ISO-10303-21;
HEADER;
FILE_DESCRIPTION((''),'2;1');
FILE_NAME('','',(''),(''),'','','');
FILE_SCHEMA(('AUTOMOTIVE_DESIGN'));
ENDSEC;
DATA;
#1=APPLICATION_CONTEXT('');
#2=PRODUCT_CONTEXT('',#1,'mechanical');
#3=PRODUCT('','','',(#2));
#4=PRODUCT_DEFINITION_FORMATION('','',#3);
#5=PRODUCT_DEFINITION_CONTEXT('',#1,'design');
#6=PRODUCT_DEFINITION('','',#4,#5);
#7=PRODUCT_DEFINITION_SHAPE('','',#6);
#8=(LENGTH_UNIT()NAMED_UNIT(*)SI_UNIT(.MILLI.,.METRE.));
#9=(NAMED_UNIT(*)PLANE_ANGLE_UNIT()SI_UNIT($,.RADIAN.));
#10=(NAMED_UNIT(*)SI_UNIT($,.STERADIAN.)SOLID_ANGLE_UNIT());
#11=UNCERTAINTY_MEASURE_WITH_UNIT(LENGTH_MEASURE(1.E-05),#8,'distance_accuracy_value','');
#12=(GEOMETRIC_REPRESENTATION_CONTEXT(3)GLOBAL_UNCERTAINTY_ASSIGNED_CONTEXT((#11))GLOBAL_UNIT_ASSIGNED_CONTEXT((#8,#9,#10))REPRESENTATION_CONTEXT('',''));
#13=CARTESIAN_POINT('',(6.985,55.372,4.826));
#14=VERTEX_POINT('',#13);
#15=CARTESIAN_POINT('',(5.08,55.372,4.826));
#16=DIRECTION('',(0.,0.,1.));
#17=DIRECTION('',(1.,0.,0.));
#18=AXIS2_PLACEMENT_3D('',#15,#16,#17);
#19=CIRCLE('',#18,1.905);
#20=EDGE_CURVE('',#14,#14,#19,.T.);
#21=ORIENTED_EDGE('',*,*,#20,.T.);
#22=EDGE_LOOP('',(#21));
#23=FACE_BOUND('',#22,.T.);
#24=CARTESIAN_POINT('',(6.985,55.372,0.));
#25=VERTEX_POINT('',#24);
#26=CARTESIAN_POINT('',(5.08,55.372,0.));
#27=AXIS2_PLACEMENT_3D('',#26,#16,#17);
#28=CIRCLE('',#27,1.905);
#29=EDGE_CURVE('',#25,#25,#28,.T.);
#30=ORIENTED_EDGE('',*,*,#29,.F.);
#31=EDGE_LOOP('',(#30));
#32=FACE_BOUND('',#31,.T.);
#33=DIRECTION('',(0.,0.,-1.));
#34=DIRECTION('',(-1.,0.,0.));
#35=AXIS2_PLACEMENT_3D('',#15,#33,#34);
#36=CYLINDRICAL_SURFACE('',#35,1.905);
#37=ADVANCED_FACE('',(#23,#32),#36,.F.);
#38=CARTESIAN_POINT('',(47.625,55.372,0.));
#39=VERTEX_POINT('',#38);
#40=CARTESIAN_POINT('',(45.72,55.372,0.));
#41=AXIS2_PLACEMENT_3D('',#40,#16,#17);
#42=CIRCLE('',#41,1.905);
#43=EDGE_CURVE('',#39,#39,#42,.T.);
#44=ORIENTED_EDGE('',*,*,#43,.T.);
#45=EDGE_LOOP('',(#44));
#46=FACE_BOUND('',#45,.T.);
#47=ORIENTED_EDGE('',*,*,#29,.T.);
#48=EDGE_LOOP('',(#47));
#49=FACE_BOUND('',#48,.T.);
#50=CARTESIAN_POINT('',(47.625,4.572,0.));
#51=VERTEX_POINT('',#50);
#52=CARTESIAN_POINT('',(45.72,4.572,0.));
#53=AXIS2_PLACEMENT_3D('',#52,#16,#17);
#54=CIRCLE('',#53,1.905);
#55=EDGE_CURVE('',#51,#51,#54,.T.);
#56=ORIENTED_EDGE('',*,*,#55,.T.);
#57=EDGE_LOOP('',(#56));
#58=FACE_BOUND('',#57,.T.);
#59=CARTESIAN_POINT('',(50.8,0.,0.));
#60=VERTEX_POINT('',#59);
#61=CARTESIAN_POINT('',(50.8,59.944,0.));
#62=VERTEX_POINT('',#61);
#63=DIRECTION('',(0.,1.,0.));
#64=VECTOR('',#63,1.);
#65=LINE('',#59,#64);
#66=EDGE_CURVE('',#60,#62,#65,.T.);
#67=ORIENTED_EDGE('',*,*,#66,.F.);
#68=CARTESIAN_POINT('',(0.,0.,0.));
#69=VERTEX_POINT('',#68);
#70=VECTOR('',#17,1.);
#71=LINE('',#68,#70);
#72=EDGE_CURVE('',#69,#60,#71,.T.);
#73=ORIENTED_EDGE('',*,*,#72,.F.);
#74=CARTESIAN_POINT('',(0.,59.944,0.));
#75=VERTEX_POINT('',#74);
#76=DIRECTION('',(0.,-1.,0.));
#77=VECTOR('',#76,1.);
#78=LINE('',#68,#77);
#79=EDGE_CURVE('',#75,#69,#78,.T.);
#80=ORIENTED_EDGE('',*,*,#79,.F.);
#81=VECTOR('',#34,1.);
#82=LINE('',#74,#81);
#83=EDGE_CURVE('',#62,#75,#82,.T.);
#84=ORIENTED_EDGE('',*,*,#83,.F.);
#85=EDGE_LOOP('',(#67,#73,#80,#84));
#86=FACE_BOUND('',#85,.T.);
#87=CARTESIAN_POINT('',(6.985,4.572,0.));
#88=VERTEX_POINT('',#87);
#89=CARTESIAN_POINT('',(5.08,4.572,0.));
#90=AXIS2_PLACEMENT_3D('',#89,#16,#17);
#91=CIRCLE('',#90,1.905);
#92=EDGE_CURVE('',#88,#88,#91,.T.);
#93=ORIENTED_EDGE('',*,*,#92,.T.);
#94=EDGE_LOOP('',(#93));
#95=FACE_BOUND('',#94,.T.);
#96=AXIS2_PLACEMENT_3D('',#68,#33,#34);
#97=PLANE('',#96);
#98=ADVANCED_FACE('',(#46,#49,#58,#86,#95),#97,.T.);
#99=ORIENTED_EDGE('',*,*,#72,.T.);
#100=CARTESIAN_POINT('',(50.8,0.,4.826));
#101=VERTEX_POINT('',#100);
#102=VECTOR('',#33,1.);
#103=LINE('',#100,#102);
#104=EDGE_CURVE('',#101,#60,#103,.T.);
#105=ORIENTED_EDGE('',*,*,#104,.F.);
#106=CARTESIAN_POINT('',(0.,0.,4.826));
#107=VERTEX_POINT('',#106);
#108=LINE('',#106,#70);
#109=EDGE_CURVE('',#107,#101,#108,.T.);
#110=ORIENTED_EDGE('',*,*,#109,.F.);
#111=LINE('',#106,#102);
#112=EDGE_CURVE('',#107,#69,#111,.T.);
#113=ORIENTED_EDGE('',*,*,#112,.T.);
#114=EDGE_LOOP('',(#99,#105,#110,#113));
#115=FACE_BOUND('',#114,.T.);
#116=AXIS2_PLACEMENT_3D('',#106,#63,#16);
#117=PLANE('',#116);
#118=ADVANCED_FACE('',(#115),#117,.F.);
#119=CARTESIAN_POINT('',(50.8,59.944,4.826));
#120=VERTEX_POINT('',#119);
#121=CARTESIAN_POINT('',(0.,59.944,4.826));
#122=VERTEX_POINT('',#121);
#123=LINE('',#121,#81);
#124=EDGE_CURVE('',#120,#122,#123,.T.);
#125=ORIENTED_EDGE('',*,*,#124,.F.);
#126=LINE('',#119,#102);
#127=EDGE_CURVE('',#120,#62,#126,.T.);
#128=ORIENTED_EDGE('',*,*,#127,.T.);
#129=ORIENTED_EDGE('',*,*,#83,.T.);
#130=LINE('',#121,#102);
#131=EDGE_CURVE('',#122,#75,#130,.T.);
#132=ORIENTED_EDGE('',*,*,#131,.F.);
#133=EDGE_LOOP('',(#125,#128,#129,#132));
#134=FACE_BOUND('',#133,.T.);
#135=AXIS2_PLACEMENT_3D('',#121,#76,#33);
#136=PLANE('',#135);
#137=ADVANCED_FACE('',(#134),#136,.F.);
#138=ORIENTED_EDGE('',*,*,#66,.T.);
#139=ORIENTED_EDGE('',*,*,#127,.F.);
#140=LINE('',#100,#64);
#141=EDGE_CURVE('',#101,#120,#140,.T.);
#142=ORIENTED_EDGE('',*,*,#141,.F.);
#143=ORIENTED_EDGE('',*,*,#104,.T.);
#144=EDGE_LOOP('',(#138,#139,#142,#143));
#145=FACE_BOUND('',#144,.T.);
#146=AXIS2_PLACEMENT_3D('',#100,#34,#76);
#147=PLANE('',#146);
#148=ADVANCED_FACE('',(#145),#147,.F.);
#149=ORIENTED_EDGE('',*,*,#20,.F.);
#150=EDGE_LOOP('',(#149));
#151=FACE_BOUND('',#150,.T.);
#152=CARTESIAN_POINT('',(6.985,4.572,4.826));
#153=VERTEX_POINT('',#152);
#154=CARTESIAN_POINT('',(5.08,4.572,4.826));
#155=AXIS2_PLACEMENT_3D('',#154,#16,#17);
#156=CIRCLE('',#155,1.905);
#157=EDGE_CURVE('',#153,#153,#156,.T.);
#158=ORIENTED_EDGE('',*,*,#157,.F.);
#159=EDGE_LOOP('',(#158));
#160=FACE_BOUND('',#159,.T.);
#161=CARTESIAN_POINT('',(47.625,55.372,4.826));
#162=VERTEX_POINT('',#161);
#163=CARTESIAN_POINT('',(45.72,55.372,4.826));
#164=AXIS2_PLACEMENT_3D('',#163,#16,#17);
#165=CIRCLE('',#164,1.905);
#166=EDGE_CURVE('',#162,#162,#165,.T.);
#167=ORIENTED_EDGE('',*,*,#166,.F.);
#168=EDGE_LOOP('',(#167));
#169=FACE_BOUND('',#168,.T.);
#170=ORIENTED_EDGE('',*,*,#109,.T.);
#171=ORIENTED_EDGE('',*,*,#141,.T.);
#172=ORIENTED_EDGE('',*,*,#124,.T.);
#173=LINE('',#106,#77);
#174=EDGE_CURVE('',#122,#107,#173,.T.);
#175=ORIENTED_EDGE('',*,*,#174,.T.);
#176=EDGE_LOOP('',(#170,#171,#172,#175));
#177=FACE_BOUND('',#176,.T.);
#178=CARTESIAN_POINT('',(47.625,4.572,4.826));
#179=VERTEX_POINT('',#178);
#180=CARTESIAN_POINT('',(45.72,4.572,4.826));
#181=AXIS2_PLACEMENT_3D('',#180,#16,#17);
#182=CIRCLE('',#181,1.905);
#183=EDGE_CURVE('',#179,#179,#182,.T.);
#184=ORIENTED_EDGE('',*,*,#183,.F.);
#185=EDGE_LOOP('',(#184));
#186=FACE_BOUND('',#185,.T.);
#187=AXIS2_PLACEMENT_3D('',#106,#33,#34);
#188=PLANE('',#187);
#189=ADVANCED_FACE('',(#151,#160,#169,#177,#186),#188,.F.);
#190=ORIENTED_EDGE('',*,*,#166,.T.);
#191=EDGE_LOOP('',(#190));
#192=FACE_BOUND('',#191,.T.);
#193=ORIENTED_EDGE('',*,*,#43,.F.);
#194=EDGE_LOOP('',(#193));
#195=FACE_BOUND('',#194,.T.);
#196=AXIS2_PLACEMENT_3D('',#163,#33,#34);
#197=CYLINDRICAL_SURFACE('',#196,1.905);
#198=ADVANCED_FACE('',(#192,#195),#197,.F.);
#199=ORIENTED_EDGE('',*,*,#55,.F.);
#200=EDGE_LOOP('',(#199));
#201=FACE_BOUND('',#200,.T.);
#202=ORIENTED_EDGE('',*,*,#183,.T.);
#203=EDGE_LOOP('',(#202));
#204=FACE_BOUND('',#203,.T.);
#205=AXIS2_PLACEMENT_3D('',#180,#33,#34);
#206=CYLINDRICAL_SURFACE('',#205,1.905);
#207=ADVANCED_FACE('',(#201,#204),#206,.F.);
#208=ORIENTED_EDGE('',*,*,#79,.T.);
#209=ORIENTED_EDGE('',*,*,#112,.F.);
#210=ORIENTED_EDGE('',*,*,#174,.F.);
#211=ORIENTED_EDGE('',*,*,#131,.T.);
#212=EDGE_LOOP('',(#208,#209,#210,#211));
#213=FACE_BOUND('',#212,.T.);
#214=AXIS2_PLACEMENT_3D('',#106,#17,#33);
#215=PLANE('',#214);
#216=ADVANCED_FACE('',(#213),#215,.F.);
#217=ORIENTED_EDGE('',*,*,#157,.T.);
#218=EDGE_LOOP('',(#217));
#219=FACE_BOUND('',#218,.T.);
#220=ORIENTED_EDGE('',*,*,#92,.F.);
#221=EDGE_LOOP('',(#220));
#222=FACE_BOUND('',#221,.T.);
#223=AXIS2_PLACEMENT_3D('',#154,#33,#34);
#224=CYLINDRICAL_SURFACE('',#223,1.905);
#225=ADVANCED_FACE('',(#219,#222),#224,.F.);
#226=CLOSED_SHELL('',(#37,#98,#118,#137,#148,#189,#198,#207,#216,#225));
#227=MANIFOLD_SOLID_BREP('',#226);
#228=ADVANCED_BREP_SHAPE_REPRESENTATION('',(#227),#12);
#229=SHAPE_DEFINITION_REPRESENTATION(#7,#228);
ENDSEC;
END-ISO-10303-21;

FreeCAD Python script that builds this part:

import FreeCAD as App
import Part
import Sketcher

V = App.Vector
Q = App.Units.Quantity

doc = App.newDocument("Part")
body = doc.addObject("PartDesign::Body", "Body")

sketch1 = body.newObject("Sketcher::SketchObject", "Sketch")
sketch1.AttachmentSupport = (doc.getObject("XY_Plane"), [""])
sketch1.MapMode = "FlatFace"
sketch1.addGeometry([
    Part.LineSegment(V(0, 59.9, 0), V(0, 0, 0)),
    Part.LineSegment(V(0, 0, 0), V(50.8, 0, 0)),
    Part.LineSegment(V(50.8, 0, 0), V(50.8, 59.9, 0)),
    Part.LineSegment(V(50.8, 59.9, 0), V(0, 59.9, 0)),
    Part.Circle(V(5.1, 4.6, 0), V(0, 0, 1), 1.9),
    Part.Circle(V(45.7, 4.6, 0), V(0, 0, 1), 1.9),
    Part.Circle(V(5.1, 55.4, 0), V(0, 0, 1), 1.9),
    Part.Circle(V(45.7, 55.4, 0), V(0, 0, 1), 1.9),
], False)
sketch1.addConstraint([
    Sketcher.Constraint("Coincident", 0, 2, 1, 1),
    Sketcher.Constraint("Coincident", 1, 2, 2, 1),
    Sketcher.Constraint("Coincident", 2, 2, 3, 1),
    Sketcher.Constraint("Coincident", 3, 2, 0, 1),
    Sketcher.Constraint("Vertical", 0),
    Sketcher.Constraint("Horizontal", 1),
    Sketcher.Constraint("Vertical", 2),
    Sketcher.Constraint("Horizontal", 3),
    Sketcher.Constraint("Coincident", 0, 2, -1, 1),
    Sketcher.Constraint("Equal", 4, 5),
    Sketcher.Constraint("Equal", 5, 6),
    Sketcher.Constraint("Equal", 6, 7),
    Sketcher.Constraint("Horizontal", 4, 3, 5, 3),
    Sketcher.Constraint("Horizontal", 6, 3, 7, 3),
    Sketcher.Constraint("Vertical", 4, 3, 6, 3),
    Sketcher.Constraint("Vertical", 5, 3, 7, 3),
    Sketcher.Constraint("Diameter", 4, Q("0.15 in")),
    Sketcher.Constraint("DistanceX", 1, 1, 1, 2, Q("2 in")),
    Sketcher.Constraint("DistanceY", 4, 3, 6, 3, Q("2 in")),
    Sketcher.Constraint("DistanceY", 0, 2, 0, 1, Q("2.36 in")),
    Sketcher.Constraint("DistanceX", -1, 1, 4, 3, Q("0.2 in")),
    Sketcher.Constraint("DistanceX", -1, 1, 5, 3, Q("1.8 in")),
    Sketcher.Constraint("DistanceY", -1, 1, 4, 3, Q("0.18 in")),
])
pad1 = body.newObject("PartDesign::Pad", "Pad")
pad1.Profile = sketch1
pad1.Length = Q("0.19 in")

doc.recompute()
